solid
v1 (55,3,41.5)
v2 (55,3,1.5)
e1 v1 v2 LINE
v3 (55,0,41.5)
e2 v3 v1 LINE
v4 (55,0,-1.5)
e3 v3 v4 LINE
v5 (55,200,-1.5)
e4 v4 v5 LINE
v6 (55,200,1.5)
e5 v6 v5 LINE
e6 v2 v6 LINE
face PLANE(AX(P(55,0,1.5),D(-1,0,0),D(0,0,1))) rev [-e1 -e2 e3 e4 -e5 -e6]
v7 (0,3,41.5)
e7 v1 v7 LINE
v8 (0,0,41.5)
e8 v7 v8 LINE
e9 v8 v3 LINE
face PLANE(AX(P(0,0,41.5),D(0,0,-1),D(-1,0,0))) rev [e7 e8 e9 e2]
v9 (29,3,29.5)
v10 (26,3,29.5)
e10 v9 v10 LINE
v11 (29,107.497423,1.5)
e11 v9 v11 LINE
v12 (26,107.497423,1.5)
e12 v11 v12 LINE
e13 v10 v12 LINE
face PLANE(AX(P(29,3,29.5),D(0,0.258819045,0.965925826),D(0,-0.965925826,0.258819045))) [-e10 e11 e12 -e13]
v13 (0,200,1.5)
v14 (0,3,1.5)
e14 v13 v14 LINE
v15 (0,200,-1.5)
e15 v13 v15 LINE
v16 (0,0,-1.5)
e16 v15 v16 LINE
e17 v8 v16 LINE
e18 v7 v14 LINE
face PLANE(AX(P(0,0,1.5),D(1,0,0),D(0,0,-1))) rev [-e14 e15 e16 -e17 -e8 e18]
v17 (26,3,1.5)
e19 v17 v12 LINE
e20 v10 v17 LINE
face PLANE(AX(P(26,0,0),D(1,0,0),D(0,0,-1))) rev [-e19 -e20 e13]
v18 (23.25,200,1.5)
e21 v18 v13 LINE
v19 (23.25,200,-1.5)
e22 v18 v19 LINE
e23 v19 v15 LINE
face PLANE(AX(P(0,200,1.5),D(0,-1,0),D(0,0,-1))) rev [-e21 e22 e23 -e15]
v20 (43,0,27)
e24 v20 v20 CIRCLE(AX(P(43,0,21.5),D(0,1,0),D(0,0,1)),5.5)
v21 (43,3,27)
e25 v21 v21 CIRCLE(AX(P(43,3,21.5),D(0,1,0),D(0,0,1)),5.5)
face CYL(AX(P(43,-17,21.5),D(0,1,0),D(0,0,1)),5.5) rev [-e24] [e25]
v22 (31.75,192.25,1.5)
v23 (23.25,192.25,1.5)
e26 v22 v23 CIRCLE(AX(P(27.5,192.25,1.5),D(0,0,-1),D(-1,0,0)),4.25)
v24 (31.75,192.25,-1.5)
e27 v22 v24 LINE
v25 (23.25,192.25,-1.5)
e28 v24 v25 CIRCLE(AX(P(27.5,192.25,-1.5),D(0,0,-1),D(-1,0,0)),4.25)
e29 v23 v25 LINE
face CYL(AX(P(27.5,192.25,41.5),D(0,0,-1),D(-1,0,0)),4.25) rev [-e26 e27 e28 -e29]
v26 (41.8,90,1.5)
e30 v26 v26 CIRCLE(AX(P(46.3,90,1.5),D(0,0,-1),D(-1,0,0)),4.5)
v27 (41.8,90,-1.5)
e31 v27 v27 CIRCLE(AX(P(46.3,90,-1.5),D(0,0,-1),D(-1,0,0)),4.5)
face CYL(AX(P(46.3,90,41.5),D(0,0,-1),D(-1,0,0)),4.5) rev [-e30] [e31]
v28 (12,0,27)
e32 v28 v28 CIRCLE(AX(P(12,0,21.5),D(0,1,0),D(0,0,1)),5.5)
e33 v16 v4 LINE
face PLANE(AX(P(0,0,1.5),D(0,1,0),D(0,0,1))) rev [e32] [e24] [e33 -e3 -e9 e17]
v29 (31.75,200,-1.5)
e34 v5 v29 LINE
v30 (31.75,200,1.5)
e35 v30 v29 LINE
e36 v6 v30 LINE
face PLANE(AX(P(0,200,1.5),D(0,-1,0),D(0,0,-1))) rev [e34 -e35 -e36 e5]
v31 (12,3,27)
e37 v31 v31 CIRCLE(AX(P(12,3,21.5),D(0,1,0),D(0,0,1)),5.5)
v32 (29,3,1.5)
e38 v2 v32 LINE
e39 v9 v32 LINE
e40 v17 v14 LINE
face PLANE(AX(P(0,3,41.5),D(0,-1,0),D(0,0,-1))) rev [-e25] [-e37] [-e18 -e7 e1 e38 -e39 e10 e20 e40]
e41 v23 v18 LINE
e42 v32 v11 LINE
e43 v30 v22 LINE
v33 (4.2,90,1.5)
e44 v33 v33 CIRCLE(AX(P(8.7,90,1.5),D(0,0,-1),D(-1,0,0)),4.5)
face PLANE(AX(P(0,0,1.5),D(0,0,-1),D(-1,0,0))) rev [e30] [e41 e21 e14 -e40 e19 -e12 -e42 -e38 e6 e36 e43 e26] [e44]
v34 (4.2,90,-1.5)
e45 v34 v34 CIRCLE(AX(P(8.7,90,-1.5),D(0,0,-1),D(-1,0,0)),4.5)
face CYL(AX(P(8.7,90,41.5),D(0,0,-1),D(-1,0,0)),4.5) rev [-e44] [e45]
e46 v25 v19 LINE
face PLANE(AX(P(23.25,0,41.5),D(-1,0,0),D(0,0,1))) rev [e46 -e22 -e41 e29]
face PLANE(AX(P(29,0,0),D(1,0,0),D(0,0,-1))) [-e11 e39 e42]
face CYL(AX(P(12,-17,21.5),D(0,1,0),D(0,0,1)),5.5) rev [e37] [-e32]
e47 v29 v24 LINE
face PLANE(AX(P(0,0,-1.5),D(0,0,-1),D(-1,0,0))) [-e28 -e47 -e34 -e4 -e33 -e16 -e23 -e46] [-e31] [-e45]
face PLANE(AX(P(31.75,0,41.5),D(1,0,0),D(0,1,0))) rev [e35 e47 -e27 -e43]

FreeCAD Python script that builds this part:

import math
import FreeCAD as App
import Part
import Sketcher
Q = App.Units.Quantity


def add_polygon(sketch, points):
    """Adds a closed chain of lines whose ends are joined by coincident constraints."""
    first, n = sketch.GeometryCount, len(points)
    for a, b in zip(points, points[1:] + points[:1]):
        sketch.addGeometry(Part.LineSegment(App.Vector(*a, 0), App.Vector(*b, 0)), False)
    for i in range(n):
        sketch.addConstraint(Sketcher.Constraint("Coincident", first + i, 2, first + (i + 1) % n, 1))

doc = App.newDocument("Part")
body = doc.addObject("PartDesign::Body", "Body")

# Sketch on XY plane
sketch1 = doc.addObject("Sketcher::SketchObject", "Sketch")
body.addObject(sketch1)
sketch1.AttachmentSupport = (doc.XY_Plane, [""])
sketch1.MapMode = "FlatFace"
add_polygon(sketch1, [(0, 200), (0, 0), (55, 0), (55, 200)])  # lines 0-3
sketch1.addConstraint(Sketcher.Constraint("Vertical", 0))
sketch1.addConstraint(Sketcher.Constraint("Horizontal", 1))
sketch1.addConstraint(Sketcher.Constraint("Vertical", 2))
sketch1.addConstraint(Sketcher.Constraint("Horizontal", 3))
sketch1.addConstraint(Sketcher.Constraint("Coincident", 0, 2, -1, 1))
sketch1.addConstraint(Sketcher.Constraint("DistanceX", 1, 1, 1, 2, 55.0))
sketch1.addConstraint(Sketcher.Constraint("DistanceY", 0, 2, 0, 1, 200.0))
pad1 = doc.addObject("PartDesign::Pad", "Pad")
body.addObject(pad1)
pad1.Profile = sketch1
pad1.Length = 3
pad1.Midplane = True
body2 = doc.addObject("PartDesign::Body", "Body001")

# Sketch on XY plane
sketch2 = doc.addObject("Sketcher::SketchObject", "Sketch001")
body2.addObject(sketch2)
sketch2.AttachmentSupport = (doc.getObject("XY_Plane001"), [""])
sketch2.MapMode = "FlatFace"
sketch2.AttachmentOffset = App.Placement(App.Vector(0, 0, 1.5), App.Rotation())
add_polygon(sketch2, [(0, 3), (0, 0), (55, 0), (55, 3)])  # lines 0-3
sketch2.addConstraint(Sketcher.Constraint("Vertical", 0))
sketch2.addConstraint(Sketcher.Constraint("Horizontal", 1))
sketch2.addConstraint(Sketcher.Constraint("Vertical", 2))
sketch2.addConstraint(Sketcher.Constraint("Horizontal", 3))
sketch2.addConstraint(Sketcher.Constraint("Coincident", 0, 2, -1, 1))
sketch2.addConstraint(Sketcher.Constraint("DistanceX", 1, 1, 1, 2, 55.0))
sketch2.addConstraint(Sketcher.Constraint("DistanceY", 0, 2, 0, 1, 3.0))
pad2 = doc.addObject("PartDesign::Pad", "Pad001")
body2.addObject(pad2)
pad2.Profile = sketch2
pad2.Length = 40

# Sketch on XZ plane
sketch3 = doc.addObject("Sketcher::SketchObject", "Sketch002")
body2.addObject(sketch3)
sketch3.AttachmentSupport = (doc.getObject("XZ_Plane001"), [""])
sketch3.MapMode = "FlatFace"
sketch3.AttachmentOffset = App.Placement(App.Vector(0, 0, -3), App.Rotation())
sketch3.addGeometry(Part.Circle(App.Vector(12, 22, 0), App.Vector(0, 0, 1), 6), False)
sketch3.addGeometry(Part.Circle(App.Vector(43, 22, 0), App.Vector(0, 0, 1), 6), False)
sketch3.addConstraint(Sketcher.Constraint("Equal", 0, 1))
sketch3.addConstraint(Sketcher.Constraint("Horizontal", 0, 3, 1, 3))
sketch3.addConstraint(Sketcher.Constraint("Diameter", 0, 11.0))
sketch3.addConstraint(Sketcher.Constraint("DistanceX", -1, 1, 0, 3, 12.0))
sketch3.addConstraint(Sketcher.Constraint("DistanceX", -1, 1, 1, 3, 43.0))
sketch3.addConstraint(Sketcher.Constraint("DistanceY", -1, 1, 0, 3, 21.5))
pocket1 = doc.addObject("PartDesign::Pocket", "Pocket")
body2.addObject(pocket1)
pocket1.Profile = sketch3
pocket1.Length = 20
pocket1.Reversed = True
doc.recompute()

boolean = doc.addObject("PartDesign::Boolean", "Boolean")
body.addObject(boolean)
boolean.Type = "Fuse"
boolean.addObjects([body2])

# Sketch on YZ plane
sketch4 = doc.addObject("Sketcher::SketchObject", "Sketch003")
body.addObject(sketch4)
sketch4.AttachmentSupport = (doc.YZ_Plane, [""])
sketch4.MapMode = "FlatFace"
sketch4.AttachmentOffset = App.Placement(App.Vector(0, 0, 27.5), App.Rotation())
add_polygon(sketch4, [(107, 2), (3, 30), (3, 2)])  # lines 0-2
sketch4.addConstraint(Sketcher.Constraint("Vertical", 1))
sketch4.addConstraint(Sketcher.Constraint("Horizontal", 2))
sketch4.addConstraint(Sketcher.Constraint("DistanceY", 1, 2, 1, 1, 28.0))
sketch4.addConstraint(Sketcher.Constraint("Angle", 0, Q("165 deg")))
sketch4.addConstraint(Sketcher.Constraint("DistanceX", -1, 1, 0, 2, 3.0))
sketch4.addConstraint(Sketcher.Constraint("DistanceY", -1, 1, 0, 2, 29.5))
pad3 = doc.addObject("PartDesign::Pad", "Pad002")
body.addObject(pad3)
pad3.Profile = sketch4
pad3.Length = 3
pad3.Midplane = True

# Sketch on XY plane
sketch5 = doc.addObject("Sketcher::SketchObject", "Sketch004")
body.addObject(sketch5)
sketch5.AttachmentSupport = (doc.XY_Plane, [""])
sketch5.MapMode = "FlatFace"
sketch5.AttachmentOffset = App.Placement(App.Vector(0, 0, -1.5), App.Rotation())
sketch5.addGeometry(Part.Circle(App.Vector(8.7, 90, 0), App.Vector(0, 0, 1), 4.5), False)
sketch5.addGeometry(Part.Circle(App.Vector(46.3, 90, 0), App.Vector(0, 0, 1), 4.5), False)
sketch5.addGeometry(Part.LineSegment(App.Vector(31.8, 200, 0), App.Vector(31.8, 192.2, 0)), False)
sketch5.addGeometry(Part.ArcOfCircle(Part.Circle(App.Vector(27.5, 192.2, 0), App.Vector(0, 0, 1), 4.2), math.radians(180), math.radians(360)), False)
sketch5.addGeometry(Part.LineSegment(App.Vector(23.2, 192.2, 0), App.Vector(23.2, 200, 0)), False)
sketch5.addGeometry(Part.LineSegment(App.Vector(23.2, 200, 0), App.Vector(31.8, 200, 0)), False)
sketch5.addConstraint(Sketcher.Constraint("Tangent", 2, 2, 3, 2))
sketch5.addConstraint(Sketcher.Constraint("Tangent", 3, 1, 4, 1))
sketch5.addConstraint(Sketcher.Constraint("Coincident", 4, 2, 5, 1))
sketch5.addConstraint(Sketcher.Constraint("Coincident", 5, 2, 2, 1))
sketch5.addConstraint(Sketcher.Constraint("Vertical", 2))
sketch5.addConstraint(Sketcher.Constraint("Vertical", 4))
sketch5.addConstraint(Sketcher.Constraint("Horizontal", 5))
sketch5.addConstraint(Sketcher.Constraint("Equal", 0, 1))
sketch5.addConstraint(Sketcher.Constraint("Horizontal", 0, 3, 1, 3))
sketch5.addConstraint(Sketcher.Constraint("Diameter", 0, 9.0))
sketch5.addConstraint(Sketcher.Constraint("Radius", 3, 4.25))
sketch5.addConstraint(Sketcher.Constraint("DistanceY", -1, 1, 0, 3, 90.0))
sketch5.addConstraint(Sketcher.Constraint("DistanceY", -1, 1, 4, 2, 200.0))
sketch5.addConstraint(Sketcher.Constraint("DistanceY", 2, 2, 2, 1, 7.75))
sketch5.addConstraint(Sketcher.Constraint("DistanceX", -1, 1, 0, 3, 8.7))
sketch5.addConstraint(Sketcher.Constraint("DistanceX", -1, 1, 1, 3, 46.3))
sketch5.addConstraint(Sketcher.Constraint("DistanceX", -1, 1, 3, 3, 27.5))
pocket2 = doc.addObject("PartDesign::Pocket", "Pocket001")
body.addObject(pocket2)
pocket2.Profile = sketch5
pocket2.Type = "ThroughAll"
pocket2.Reversed = True

doc.recompute()
